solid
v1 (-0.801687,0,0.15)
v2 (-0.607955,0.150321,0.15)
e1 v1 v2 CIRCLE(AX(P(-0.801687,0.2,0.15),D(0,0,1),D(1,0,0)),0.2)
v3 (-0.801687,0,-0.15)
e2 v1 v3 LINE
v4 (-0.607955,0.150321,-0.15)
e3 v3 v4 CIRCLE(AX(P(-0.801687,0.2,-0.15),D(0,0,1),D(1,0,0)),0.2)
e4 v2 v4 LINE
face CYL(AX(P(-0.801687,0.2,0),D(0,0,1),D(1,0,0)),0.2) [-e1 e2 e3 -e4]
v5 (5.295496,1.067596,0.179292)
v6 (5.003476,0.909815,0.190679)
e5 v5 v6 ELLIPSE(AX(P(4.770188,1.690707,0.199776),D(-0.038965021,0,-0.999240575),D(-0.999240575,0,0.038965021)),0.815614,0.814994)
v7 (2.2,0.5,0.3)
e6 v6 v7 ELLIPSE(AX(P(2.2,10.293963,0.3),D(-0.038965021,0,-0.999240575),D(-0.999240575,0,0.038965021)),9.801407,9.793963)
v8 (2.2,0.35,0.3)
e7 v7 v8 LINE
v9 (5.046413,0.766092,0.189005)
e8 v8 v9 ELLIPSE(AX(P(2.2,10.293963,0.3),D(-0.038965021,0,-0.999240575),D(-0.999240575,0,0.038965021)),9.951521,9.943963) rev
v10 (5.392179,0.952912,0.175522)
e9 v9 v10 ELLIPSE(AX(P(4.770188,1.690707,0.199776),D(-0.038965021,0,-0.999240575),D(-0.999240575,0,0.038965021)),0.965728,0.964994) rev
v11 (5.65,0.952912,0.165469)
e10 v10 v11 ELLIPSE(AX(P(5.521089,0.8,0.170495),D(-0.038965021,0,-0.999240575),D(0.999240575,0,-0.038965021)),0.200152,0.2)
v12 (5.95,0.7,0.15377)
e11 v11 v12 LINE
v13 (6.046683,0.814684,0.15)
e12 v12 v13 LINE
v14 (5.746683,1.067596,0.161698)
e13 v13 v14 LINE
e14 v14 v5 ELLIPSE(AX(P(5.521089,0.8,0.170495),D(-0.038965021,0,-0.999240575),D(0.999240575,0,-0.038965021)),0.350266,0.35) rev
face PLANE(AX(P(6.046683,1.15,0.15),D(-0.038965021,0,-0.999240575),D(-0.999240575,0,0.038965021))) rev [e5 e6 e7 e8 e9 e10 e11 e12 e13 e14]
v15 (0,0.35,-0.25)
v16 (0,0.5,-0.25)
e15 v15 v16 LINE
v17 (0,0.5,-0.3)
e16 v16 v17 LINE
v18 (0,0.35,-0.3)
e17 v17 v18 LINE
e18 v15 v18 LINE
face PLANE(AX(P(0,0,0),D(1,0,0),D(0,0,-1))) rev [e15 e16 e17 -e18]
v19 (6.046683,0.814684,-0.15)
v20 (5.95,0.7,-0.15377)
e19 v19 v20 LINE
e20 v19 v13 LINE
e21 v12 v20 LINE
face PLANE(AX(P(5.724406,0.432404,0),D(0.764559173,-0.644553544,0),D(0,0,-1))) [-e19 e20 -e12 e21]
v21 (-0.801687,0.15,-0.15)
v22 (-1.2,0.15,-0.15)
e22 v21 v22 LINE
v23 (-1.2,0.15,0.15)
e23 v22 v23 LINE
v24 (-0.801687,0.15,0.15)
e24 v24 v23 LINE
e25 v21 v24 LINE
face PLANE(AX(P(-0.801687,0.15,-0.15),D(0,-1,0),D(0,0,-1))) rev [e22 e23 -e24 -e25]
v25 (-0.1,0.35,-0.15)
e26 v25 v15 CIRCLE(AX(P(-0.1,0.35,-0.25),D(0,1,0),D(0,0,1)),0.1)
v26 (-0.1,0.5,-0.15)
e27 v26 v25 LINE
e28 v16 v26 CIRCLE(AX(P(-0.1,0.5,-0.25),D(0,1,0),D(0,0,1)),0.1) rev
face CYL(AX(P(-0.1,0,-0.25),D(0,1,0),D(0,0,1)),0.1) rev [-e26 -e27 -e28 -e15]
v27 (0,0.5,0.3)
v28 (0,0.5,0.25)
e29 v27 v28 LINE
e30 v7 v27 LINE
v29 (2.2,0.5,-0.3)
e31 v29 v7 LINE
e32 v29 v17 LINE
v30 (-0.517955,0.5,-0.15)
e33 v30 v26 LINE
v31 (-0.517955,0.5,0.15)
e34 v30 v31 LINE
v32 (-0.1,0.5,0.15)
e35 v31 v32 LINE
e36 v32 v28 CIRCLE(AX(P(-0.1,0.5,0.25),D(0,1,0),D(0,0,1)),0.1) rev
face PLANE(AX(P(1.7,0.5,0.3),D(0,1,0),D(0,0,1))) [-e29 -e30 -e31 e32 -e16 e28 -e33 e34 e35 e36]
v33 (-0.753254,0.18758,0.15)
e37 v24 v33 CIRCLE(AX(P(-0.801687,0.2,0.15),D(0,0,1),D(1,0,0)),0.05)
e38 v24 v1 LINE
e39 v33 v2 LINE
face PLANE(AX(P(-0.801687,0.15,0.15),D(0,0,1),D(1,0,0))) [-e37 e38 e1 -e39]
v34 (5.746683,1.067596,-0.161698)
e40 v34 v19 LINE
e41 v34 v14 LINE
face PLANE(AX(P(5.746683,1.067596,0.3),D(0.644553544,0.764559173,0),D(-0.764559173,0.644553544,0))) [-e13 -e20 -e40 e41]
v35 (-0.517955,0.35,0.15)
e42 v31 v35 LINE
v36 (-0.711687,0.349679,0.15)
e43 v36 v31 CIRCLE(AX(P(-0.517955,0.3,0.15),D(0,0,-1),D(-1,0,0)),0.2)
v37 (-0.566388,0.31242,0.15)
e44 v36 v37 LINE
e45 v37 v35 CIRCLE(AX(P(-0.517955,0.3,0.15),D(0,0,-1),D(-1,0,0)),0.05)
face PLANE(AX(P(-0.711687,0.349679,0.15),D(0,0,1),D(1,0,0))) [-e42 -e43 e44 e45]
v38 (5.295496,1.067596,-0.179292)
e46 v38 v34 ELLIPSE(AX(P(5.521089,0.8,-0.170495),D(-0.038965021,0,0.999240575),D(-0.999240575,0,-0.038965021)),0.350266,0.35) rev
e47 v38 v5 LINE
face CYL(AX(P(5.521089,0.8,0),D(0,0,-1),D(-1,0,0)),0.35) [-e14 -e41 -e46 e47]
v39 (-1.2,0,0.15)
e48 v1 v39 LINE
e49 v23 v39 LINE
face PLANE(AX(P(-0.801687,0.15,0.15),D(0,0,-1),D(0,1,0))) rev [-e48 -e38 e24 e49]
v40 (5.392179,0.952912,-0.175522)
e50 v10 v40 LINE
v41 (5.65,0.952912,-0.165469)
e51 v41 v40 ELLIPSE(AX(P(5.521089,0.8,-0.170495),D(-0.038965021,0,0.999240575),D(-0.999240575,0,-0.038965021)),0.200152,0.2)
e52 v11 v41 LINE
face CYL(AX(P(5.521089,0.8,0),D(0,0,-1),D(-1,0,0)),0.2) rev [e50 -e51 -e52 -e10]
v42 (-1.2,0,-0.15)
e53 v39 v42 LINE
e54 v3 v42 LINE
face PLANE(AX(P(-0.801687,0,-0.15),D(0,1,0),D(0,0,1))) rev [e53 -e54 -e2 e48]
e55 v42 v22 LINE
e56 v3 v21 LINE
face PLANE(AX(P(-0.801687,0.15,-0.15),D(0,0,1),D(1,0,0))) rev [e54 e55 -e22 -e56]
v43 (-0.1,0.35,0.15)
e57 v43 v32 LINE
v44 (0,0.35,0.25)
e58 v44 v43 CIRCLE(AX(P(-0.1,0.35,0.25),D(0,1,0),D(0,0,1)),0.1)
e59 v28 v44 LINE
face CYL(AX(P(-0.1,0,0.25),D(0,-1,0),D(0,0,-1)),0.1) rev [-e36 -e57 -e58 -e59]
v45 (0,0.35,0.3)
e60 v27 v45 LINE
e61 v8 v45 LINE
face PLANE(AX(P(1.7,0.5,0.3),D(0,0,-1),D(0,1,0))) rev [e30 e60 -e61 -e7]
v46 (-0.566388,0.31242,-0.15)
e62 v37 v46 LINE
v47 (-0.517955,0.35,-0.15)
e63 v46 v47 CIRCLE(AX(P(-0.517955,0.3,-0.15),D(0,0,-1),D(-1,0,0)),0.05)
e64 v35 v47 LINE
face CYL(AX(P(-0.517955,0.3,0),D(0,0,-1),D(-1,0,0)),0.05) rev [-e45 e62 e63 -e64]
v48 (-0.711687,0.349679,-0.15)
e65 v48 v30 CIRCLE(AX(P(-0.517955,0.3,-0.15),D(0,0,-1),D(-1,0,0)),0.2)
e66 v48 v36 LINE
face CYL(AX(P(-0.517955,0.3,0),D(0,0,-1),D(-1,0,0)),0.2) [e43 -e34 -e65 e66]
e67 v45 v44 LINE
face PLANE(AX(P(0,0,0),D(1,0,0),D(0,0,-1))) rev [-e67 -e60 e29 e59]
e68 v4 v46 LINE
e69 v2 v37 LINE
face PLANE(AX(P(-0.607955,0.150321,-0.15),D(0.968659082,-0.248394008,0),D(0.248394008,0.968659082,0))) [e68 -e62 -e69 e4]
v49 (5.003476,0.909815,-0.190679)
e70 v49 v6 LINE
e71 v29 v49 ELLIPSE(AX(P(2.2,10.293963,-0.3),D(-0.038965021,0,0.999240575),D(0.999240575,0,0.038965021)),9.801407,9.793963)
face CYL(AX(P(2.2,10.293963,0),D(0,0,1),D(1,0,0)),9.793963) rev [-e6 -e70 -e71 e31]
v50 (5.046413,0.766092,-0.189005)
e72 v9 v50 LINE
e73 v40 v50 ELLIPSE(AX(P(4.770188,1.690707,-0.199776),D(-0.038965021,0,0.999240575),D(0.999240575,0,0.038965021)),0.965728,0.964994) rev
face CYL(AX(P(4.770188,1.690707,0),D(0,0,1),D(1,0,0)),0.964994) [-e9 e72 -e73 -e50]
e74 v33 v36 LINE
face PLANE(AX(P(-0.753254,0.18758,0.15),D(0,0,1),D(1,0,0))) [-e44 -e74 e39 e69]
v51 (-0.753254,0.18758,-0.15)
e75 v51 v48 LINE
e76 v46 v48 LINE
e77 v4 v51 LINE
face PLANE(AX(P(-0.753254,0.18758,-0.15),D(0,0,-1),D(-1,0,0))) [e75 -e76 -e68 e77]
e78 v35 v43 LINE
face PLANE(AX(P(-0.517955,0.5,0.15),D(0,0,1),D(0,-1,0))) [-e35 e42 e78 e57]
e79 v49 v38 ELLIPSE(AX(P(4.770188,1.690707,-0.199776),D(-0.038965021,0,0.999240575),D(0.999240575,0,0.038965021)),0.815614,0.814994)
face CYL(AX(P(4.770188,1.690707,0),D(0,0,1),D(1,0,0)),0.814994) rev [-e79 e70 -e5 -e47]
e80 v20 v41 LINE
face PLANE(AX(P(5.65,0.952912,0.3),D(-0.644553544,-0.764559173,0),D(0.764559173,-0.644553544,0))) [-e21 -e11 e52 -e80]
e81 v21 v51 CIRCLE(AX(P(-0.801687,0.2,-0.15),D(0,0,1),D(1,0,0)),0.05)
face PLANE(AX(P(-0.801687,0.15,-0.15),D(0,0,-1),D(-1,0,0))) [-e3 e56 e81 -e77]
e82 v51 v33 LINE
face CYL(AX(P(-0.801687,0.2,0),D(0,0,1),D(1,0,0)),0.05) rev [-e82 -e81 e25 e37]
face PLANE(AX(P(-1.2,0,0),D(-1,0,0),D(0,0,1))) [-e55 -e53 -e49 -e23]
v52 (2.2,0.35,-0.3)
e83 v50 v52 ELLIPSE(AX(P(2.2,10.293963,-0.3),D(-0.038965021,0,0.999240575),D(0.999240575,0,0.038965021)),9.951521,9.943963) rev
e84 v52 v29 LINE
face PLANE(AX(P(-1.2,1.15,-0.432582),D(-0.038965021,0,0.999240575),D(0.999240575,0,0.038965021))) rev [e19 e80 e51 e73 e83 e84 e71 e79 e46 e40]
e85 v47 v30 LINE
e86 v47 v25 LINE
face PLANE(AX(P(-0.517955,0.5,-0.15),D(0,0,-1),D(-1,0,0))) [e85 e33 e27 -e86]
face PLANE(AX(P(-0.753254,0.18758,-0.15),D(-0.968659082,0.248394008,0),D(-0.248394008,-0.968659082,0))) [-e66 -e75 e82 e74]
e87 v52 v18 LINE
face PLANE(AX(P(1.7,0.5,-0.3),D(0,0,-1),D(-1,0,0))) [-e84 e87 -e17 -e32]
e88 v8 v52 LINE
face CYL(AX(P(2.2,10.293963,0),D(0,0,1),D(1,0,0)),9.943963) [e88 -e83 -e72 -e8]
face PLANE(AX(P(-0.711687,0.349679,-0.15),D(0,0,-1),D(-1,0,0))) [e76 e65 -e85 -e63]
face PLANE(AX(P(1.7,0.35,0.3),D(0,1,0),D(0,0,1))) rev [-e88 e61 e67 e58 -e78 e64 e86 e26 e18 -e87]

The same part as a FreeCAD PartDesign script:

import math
import FreeCAD as App
import Part
import Sketcher
from FreeCAD import Vector


def edges_at(feature, points):
    """Names of the edges that pass closest to the given points."""
    edges = feature.Shape.Edges
    near = lambda p: min(range(len(edges)), key=lambda i: edges[i].distToShape(Part.Vertex(*p))[0])
    return sorted({f"Edge{near(p) + 1}" for p in points})


def add_polygon(sketch, points):
    """Adds a closed chain of lines whose ends are joined by coincident constraints."""
    first, n = sketch.GeometryCount, len(points)
    for a, b in zip(points, points[1:] + points[:1]):
        sketch.addGeometry(Part.LineSegment(App.Vector(*a, 0), App.Vector(*b, 0)), False)
    for i in range(n):
        sketch.addConstraint(Sketcher.Constraint("Coincident", first + i, 2, first + (i + 1) % n, 1))

doc = App.newDocument("Part")
body = doc.addObject("PartDesign::Body", "Body")

sketch1 = body.newObject("Sketcher::SketchObject", "Sketch")
sketch1.AttachmentSupport = (doc.getObject("YZ_Plane"), [""])
sketch1.MapMode = "FlatFace"
add_polygon(sketch1, [(0.5, 0.3), (0.35, 0.3), (0.35, -0.3), (0.5, -0.3)])
sketch1.addConstraint(Sketcher.Constraint("Horizontal", 0))
sketch1.addConstraint(Sketcher.Constraint("Vertical", 1))
sketch1.addConstraint(Sketcher.Constraint("Horizontal", 2))
sketch1.addConstraint(Sketcher.Constraint("Vertical", 3))
sketch1.addConstraint(Sketcher.Constraint("DistanceY", 1, 2, 1, 1, 0.6))
sketch1.addConstraint(Sketcher.Constraint("DistanceX", 0, 2, 0, 1, 0.15))
sketch1.addConstraint(Sketcher.Constraint("DistanceY", -1, 1, 0, 2, 0.3))
sketch1.addConstraint(Sketcher.Constraint("DistanceX", -1, 1, 2, 2, 0.5))
pad1 = body.newObject("PartDesign::Pad", "Pad")
pad1.Profile = sketch1
pad1.Length = 1.7

sketch2 = body.newObject("Sketcher::SketchObject", "Sketch001")
sketch2.AttachmentSupport = (doc.getObject("YZ_Plane"), [""])
sketch2.MapMode = "FlatFace"
sketch2.AttachmentOffset = App.Placement(Vector(0, 0, -1.2), App.Rotation())
add_polygon(sketch2, [(0.15, 0.15), (0, 0.15), (0, -0.15), (0.15, -0.15)])
sketch2.addConstraint(Sketcher.Constraint("Horizontal", 0))
sketch2.addConstraint(Sketcher.Constraint("Vertical", 1))
sketch2.addConstraint(Sketcher.Constraint("Horizontal", 2))
sketch2.addConstraint(Sketcher.Constraint("Vertical", 3))
sketch2.addConstraint(Sketcher.Constraint("Symmetric", 0, 2, 1, 2, -1, 1))
sketch2.addConstraint(Sketcher.Constraint("DistanceY", 1, 2, 1, 1, 0.3))
sketch2.addConstraint(Sketcher.Constraint("DistanceX", 0, 2, 0, 1, 0.15))

sketch3 = body.newObject("Sketcher::SketchObject", "Sketch002")
sketch3.AttachmentSupport = (doc.getObject("XY_Plane"), [""])
sketch3.MapMode = "FlatFace"
sketch3.addGeometry(Part.LineSegment(Vector(-1.2, 0, 0), Vector(-0.802, 0, 0)), False)
sketch3.addGeometry(Part.ArcOfCircle(Part.Circle(Vector(-0.802, 0.2, 0), Vector(0, 0, 1), 0.2), math.radians(-90), math.radians(-14)), False)
sketch3.addGeometry(Part.LineSegment(Vector(-0.608, 0.15, 0), Vector(-0.566, 0.312, 0)), False)
sketch3.addGeometry(Part.ArcOfCircle(Part.Circle(Vector(-0.518, 0.3, 0), Vector(0, 0, 1), 0.05), math.radians(90), math.radians(166)), False)
sketch3.addGeometry(Part.LineSegment(Vector(-0.518, 0.35, 0), Vector(0, 0.35, 0)), False)
sketch3.addConstraint(Sketcher.Constraint("Tangent", 0, 2, 1, 1))
sketch3.addConstraint(Sketcher.Constraint("Tangent", 1, 2, 2, 1))
sketch3.addConstraint(Sketcher.Constraint("Tangent", 2, 2, 3, 2))
sketch3.addConstraint(Sketcher.Constraint("Tangent", 3, 1, 4, 1))
sketch3.addConstraint(Sketcher.Constraint("Horizontal", 0))
sketch3.addConstraint(Sketcher.Constraint("Horizontal", 4))
sketch3.addConstraint(Sketcher.Constraint("PointOnObject", 0, 1, -1))
sketch3.addConstraint(Sketcher.Constraint("PointOnObject", 4, 2, -2))
sketch3.addConstraint(Sketcher.Constraint("Radius", 1, 0.2))
sketch3.addConstraint(Sketcher.Constraint("Radius", 3, 0.05))
sketch3.addConstraint(Sketcher.Constraint("DistanceY", -1, 1, 3, 3, 0.3))
sketch3.addConstraint(Sketcher.Constraint("DistanceX", 0, 1, -1, 1, 1.2))
sketch3.addConstraint(Sketcher.Constraint("DistanceX", 1, 2, 3, 3, 0.09))
sketch3.addConstraint(Sketcher.Constraint("DistanceX", 0, 1, 0, 2, 0.398313))
doc.recompute()

additivepipe = body.newObject("PartDesign::AdditivePipe", "AdditivePipe")
additivepipe.Profile = sketch2
additivepipe.Spine = (sketch3, ["Edge1", "Edge2", "Edge3", "Edge4", "Edge5"])
doc.recompute()

fillet = body.newObject("PartDesign::Fillet", "Fillet")
fillet.Base = (additivepipe, edges_at(additivepipe, [(0, 0.425, -0.15), (0, 0.425, 0.15)]))
fillet.Radius = 0.1

sketch4 = body.newObject("Sketcher::SketchObject", "Sketch003")
sketch4.AttachmentSupport = (doc.getObject("YZ_Plane"), [""])
sketch4.MapMode = "FlatFace"
sketch4.AttachmentOffset = App.Placement(Vector(0, 0, 1.7), App.Rotation())
add_polygon(sketch4, [(0.5, 0.3), (0.35, 0.3), (0.35, -0.3), (0.5, -0.3)])
sketch4.addConstraint(Sketcher.Constraint("Horizontal", 0))
sketch4.addConstraint(Sketcher.Constraint("Vertical", 1))
sketch4.addConstraint(Sketcher.Constraint("Horizontal", 2))
sketch4.addConstraint(Sketcher.Constraint("Vertical", 3))
sketch4.addConstraint(Sketcher.Constraint("DistanceY", 1, 2, 1, 1, 0.6))
sketch4.addConstraint(Sketcher.Constraint("DistanceX", 0, 2, 0, 1, 0.15))
sketch4.addConstraint(Sketcher.Constraint("DistanceY", -1, 1, 0, 2, 0.3))
sketch4.addConstraint(Sketcher.Constraint("DistanceX", -1, 1, 2, 2, 0.5))

sketch5 = body.newObject("Sketcher::SketchObject", "Sketch004")
sketch5.AttachmentSupport = (doc.getObject("XY_Plane"), [""])
sketch5.MapMode = "FlatFace"
sketch5.addGeometry(Part.LineSegment(Vector(1.7, 0.35, 0), Vector(2.2, 0.35, 0)), False)
sketch5.addGeometry(Part.ArcOfCircle(Part.Circle(Vector(2.2, 10.29, 0), Vector(0, 0, 1), 9.94), math.radians(-90), math.radians(-73.37)), False)
sketch5.addGeometry(Part.ArcOfCircle(Part.Circle(Vector(4.77, 1.69, 0), Vector(0, 0, 1), 0.96), math.radians(-73), math.radians(-50)), False)
sketch5.addGeometry(Part.ArcOfCircle(Part.Circle(Vector(5.52, 0.8, 0), Vector(0, 0, 1), 0.2), math.radians(50), math.radians(130)), False)
sketch5.addGeometry(Part.LineSegment(Vector(5.65, 0.95, 0), Vector(5.95, 0.7, 0)), False)
sketch5.addConstraint(Sketcher.Constraint("Tangent", 0, 2, 1, 1))
sketch5.addConstraint(Sketcher.Constraint("Tangent", 1, 2, 2, 1))
sketch5.addConstraint(Sketcher.Constraint("Tangent", 2, 2, 3, 2))
sketch5.addConstraint(Sketcher.Constraint("Tangent", 3, 1, 4, 1))
sketch5.addConstraint(Sketcher.Constraint("Horizontal", 0))
sketch5.addConstraint(Sketcher.Constraint("Horizontal", 2, 2, 3, 1))
sketch5.addConstraint(Sketcher.Constraint("Radius", 3, 0.2))
sketch5.addConstraint(Sketcher.Constraint("DistanceX", 0, 1, 0, 2, 0.5))
sketch5.addConstraint(Sketcher.Constraint("DistanceX", -1, 1, 1, 3, 2.2))
sketch5.addConstraint(Sketcher.Constraint("DistanceY", -1, 1, 3, 3, 0.8))
sketch5.addConstraint(Sketcher.Constraint("DistanceY", -1, 1, 4, 2, 0.7))
sketch5.addConstraint(Sketcher.Constraint("DistanceX", 3, 1, 4, 2, 0.3))
sketch5.addConstraint(Sketcher.Constraint("DistanceY", -1, 1, 0, 1, 0.35))
sketch5.addConstraint(Sketcher.Constraint("DistanceX", -1, 1, 3, 1, 5.65))
sketch5.addConstraint(Sketcher.Constraint("Radius", 1, 9.943963))
doc.recompute()

additivepipe2 = body.newObject("PartDesign::AdditivePipe", "AdditivePipe001")
additivepipe2.Profile = sketch4
additivepipe2.Spine = (sketch5, ["Edge1", "Edge2", "Edge3", "Edge4", "Edge5"])

sketch6 = body.newObject("Sketcher::SketchObject", "Sketch005")
sketch6.AttachmentSupport = (doc.getObject("XZ_Plane"), [""])
sketch6.MapMode = "FlatFace"
add_polygon(sketch6, [(-2.94, -2.04), (-2.94, 2.04), (7.78, 2.04), (7.78, -2.04)])
add_polygon(sketch6, [(-1.2, 0.43), (-1.2, -0.43), (6.05, -0.15), (6.05, 0.15)])
sketch6.addConstraint(Sketcher.Constraint("Vertical", 0))
sketch6.addConstraint(Sketcher.Constraint("Horizontal", 1))
sketch6.addConstraint(Sketcher.Constraint("Vertical", 2))
sketch6.addConstraint(Sketcher.Constraint("Horizontal", 3))
sketch6.addConstraint(Sketcher.Constraint("Vertical", 4))
sketch6.addConstraint(Sketcher.Constraint("Vertical", 6))
sketch6.addConstraint(Sketcher.Constraint("Equal", 5, 7))
sketch6.addConstraint(Sketcher.Constraint("DistanceY", 6, 1, 6, 2, 0.3))
sketch6.addConstraint(Sketcher.Constraint("DistanceX", 4, 2, -1, 1, 1.2))
sketch6.addConstraint(Sketcher.Constraint("DistanceX", 1, 1, 1, 2, 10.719))
sketch6.addConstraint(Sketcher.Constraint("DistanceY", 0, 1, 0, 2, 4.072))
sketch6.addConstraint(Sketcher.Constraint("DistanceY", 5, 2, -1, 1, 0.15))
sketch6.addConstraint(Sketcher.Constraint("DistanceX", 0, 2, -1, 1, 2.936))
sketch6.addConstraint(Sketcher.Constraint("DistanceY", -1, 1, 0, 2, 2.036))
sketch6.addConstraint(Sketcher.Constraint("Distance", 5, 7.252191))
sketch6.addConstraint(Sketcher.Constraint("DistanceY", 4, 2, 4, 1, 0.865164))
pocket1 = body.newObject("PartDesign::Pocket", "Pocket")
pocket1.Profile = sketch6
pocket1.Type = "ThroughAll"

doc.recompute()
